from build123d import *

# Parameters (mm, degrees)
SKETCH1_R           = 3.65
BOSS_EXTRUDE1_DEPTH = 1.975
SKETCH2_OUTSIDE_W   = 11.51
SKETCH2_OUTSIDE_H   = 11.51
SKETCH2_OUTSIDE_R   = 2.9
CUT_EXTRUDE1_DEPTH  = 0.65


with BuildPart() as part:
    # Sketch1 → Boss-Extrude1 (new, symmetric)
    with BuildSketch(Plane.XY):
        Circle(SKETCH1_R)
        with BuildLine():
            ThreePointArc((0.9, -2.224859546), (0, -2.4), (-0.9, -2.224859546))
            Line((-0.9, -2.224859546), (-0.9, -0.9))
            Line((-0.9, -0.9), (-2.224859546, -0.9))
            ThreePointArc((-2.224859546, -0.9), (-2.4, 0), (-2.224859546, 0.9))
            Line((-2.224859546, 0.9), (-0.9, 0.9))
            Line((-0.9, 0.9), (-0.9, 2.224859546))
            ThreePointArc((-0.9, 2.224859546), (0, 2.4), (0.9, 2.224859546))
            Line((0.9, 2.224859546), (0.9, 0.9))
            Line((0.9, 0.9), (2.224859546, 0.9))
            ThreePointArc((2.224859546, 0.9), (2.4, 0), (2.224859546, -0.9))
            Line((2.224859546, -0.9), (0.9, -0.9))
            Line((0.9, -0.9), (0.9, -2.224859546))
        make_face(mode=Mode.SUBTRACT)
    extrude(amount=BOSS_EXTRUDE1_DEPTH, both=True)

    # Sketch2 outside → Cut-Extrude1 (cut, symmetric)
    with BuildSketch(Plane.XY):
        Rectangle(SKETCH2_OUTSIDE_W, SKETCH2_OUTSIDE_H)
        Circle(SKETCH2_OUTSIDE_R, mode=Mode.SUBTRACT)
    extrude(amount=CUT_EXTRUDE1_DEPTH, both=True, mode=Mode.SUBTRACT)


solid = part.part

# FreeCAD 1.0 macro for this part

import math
import FreeCAD as App
import Part
import Sketcher
from FreeCAD import Vector
Q = App.Units.Quantity

doc = App.newDocument("Part")
body = doc.addObject("PartDesign::Body", "Body")

# Sketch on XY plane
sketch1 = doc.addObject("Sketcher::SketchObject", "Sketch")
body.addObject(sketch1)
sketch1.AttachmentSupport = (doc.XY_Plane, [""])
sketch1.MapMode = "FlatFace"
sketch1.addGeometry([
    Part.Circle(Vector(0, 0, 0), Vector(0, 0, 1), 3.6),  # 0
    Part.LineSegment(Vector(0.9, -0.9, 0), Vector(0.9, -2.2, 0)),  # 1
    Part.ArcOfCircle(Part.Circle(Vector(0, 0, 0), Vector(0, 0, 1), 2.4), math.radians(-112), math.radians(-68)),  # 2
    Part.LineSegment(Vector(-0.9, -2.2, 0), Vector(-0.9, -0.9, 0)),  # 3
    Part.LineSegment(Vector(-0.9, -0.9, 0), Vector(-2.2, -0.9, 0)),  # 4
    Part.ArcOfCircle(Part.Circle(Vector(0, 0, 0), Vector(0, 0, 1), 2.4), math.radians(158), math.radians(202)),  # 5
    Part.LineSegment(Vector(-2.2, 0.9, 0), Vector(-0.9, 0.9, 0)),  # 6
    Part.LineSegment(Vector(-0.9, 0.9, 0), Vector(-0.9, 2.2, 0)),  # 7
    Part.ArcOfCircle(Part.Circle(Vector(0, 0, 0), Vector(0, 0, 1), 2.4), math.radians(68), math.radians(112)),  # 8
    Part.LineSegment(Vector(0.9, 2.2, 0), Vector(0.9, 0.9, 0)),  # 9
    Part.LineSegment(Vector(0.9, 0.9, 0), Vector(2.2, 0.9, 0)),  # 10
    Part.ArcOfCircle(Part.Circle(Vector(0, 0, 0), Vector(0, 0, 1), 2.4), math.radians(-22), math.radians(22)),  # 11
    Part.LineSegment(Vector(2.2, -0.9, 0), Vector(0.9, -0.9, 0)),  # 12
], False)
sketch1.addConstraint([
    Sketcher.Constraint("Coincident", 1, 2, 2, 2),
    Sketcher.Constraint("Coincident", 2, 1, 3, 1),
    Sketcher.Constraint("Coincident", 3, 2, 4, 1),
    Sketcher.Constraint("Coincident", 4, 2, 5, 2),
    Sketcher.Constraint("Coincident", 5, 1, 6, 1),
    Sketcher.Constraint("Coincident", 6, 2, 7, 1),
    Sketcher.Constraint("Coincident", 7, 2, 8, 2),
    Sketcher.Constraint("Coincident", 8, 1, 9, 1),
    Sketcher.Constraint("Coincident", 9, 2, 10, 1),
    Sketcher.Constraint("Coincident", 10, 2, 11, 2),
    Sketcher.Constraint("Coincident", 11, 1, 12, 1),
    Sketcher.Constraint("Coincident", 12, 2, 1, 1),
    Sketcher.Constraint("Vertical", 1),
    Sketcher.Constraint("Vertical", 3),
    Sketcher.Constraint("Horizontal", 4),
    Sketcher.Constraint("Horizontal", 6),
    Sketcher.Constraint("Vertical", 7),
    Sketcher.Constraint("Vertical", 9),
    Sketcher.Constraint("Horizontal", 10),
    Sketcher.Constraint("Horizontal", 12),
    Sketcher.Constraint("Coincident", 0, 3, -1, 1),
    Sketcher.Constraint("Coincident", 2, 3, -1, 1),
    Sketcher.Constraint("Coincident", 5, 3, -1, 1),
    Sketcher.Constraint("Coincident", 8, 3, -1, 1),
    Sketcher.Constraint("Coincident", 11, 3, -1, 1),
    Sketcher.Constraint("Equal", 2, 5),
    Sketcher.Constraint("Equal", 5, 8),
    Sketcher.Constraint("Equal", 8, 11),
    Sketcher.Constraint("Symmetric", 3, 2, 9, 2, -1, 1),
    Sketcher.Constraint("Symmetric", 6, 2, 12, 2, -1, 1),
    Sketcher.Constraint("Symmetric", 6, 2, 9, 2, -2),
    Sketcher.Constraint("Equal", 12, 1),
    Sketcher.Constraint("Diameter", 0, Q("7.3 mm")),
    Sketcher.Constraint("Radius", 2, Q("2.4 mm")),
    Sketcher.Constraint("DistanceX", -1, 1, 1, 2, Q("0.9 mm")),
])
pad1 = doc.addObject("PartDesign::Pad", "Pad")
body.addObject(pad1)
pad1.Profile = sketch1
pad1.Length = 3.95
pad1.Midplane = True

# Sketch on XY plane
sketch2 = doc.addObject("Sketcher::SketchObject", "Sketch001")
body.addObject(sketch2)
sketch2.AttachmentSupport = (doc.XY_Plane, [""])
sketch2.MapMode = "FlatFace"
sketch2.addGeometry([
    Part.LineSegment(Vector(-5.8, 5.8, 0), Vector(-5.8, -5.8, 0)),  # 0
    Part.LineSegment(Vector(-5.8, -5.8, 0), Vector(5.8, -5.8, 0)),  # 1
    Part.LineSegment(Vector(5.8, -5.8, 0), Vector(5.8, 5.8, 0)),  # 2
    Part.LineSegment(Vector(5.8, 5.8, 0), Vector(-5.8, 5.8, 0)),  # 3
    Part.Circle(Vector(0, 0, 0), Vector(0, 0, 1), 2.9),  # 4
], False)
sketch2.addConstraint([
    Sketcher.Constraint("Coincident", 0, 2, 1, 1),
    Sketcher.Constraint("Coincident", 1, 2, 2, 1),
    Sketcher.Constraint("Coincident", 2, 2, 3, 1),
    Sketcher.Constraint("Coincident", 3, 2, 0, 1),
    Sketcher.Constraint("Vertical", 0),
    Sketcher.Constraint("Horizontal", 1),
    Sketcher.Constraint("Vertical", 2),
    Sketcher.Constraint("Horizontal", 3),
    Sketcher.Constraint("Coincident", 4, 3, -1, 1),
    Sketcher.Constraint("Symmetric", 0, 2, 2, 2, -1, 1),
    Sketcher.Constraint("Equal", 3, 0),
    Sketcher.Constraint("Diameter", 4, Q("5.8 mm")),
    Sketcher.Constraint("DistanceX", 1, 1, 1, 2, Q("11.51 mm")),
])
pocket1 = doc.addObject("PartDesign::Pocket", "Pocket")
body.addObject(pocket1)
pocket1.Profile = sketch2
pocket1.Length = 1.3
pocket1.Midplane = True

doc.recompute()
